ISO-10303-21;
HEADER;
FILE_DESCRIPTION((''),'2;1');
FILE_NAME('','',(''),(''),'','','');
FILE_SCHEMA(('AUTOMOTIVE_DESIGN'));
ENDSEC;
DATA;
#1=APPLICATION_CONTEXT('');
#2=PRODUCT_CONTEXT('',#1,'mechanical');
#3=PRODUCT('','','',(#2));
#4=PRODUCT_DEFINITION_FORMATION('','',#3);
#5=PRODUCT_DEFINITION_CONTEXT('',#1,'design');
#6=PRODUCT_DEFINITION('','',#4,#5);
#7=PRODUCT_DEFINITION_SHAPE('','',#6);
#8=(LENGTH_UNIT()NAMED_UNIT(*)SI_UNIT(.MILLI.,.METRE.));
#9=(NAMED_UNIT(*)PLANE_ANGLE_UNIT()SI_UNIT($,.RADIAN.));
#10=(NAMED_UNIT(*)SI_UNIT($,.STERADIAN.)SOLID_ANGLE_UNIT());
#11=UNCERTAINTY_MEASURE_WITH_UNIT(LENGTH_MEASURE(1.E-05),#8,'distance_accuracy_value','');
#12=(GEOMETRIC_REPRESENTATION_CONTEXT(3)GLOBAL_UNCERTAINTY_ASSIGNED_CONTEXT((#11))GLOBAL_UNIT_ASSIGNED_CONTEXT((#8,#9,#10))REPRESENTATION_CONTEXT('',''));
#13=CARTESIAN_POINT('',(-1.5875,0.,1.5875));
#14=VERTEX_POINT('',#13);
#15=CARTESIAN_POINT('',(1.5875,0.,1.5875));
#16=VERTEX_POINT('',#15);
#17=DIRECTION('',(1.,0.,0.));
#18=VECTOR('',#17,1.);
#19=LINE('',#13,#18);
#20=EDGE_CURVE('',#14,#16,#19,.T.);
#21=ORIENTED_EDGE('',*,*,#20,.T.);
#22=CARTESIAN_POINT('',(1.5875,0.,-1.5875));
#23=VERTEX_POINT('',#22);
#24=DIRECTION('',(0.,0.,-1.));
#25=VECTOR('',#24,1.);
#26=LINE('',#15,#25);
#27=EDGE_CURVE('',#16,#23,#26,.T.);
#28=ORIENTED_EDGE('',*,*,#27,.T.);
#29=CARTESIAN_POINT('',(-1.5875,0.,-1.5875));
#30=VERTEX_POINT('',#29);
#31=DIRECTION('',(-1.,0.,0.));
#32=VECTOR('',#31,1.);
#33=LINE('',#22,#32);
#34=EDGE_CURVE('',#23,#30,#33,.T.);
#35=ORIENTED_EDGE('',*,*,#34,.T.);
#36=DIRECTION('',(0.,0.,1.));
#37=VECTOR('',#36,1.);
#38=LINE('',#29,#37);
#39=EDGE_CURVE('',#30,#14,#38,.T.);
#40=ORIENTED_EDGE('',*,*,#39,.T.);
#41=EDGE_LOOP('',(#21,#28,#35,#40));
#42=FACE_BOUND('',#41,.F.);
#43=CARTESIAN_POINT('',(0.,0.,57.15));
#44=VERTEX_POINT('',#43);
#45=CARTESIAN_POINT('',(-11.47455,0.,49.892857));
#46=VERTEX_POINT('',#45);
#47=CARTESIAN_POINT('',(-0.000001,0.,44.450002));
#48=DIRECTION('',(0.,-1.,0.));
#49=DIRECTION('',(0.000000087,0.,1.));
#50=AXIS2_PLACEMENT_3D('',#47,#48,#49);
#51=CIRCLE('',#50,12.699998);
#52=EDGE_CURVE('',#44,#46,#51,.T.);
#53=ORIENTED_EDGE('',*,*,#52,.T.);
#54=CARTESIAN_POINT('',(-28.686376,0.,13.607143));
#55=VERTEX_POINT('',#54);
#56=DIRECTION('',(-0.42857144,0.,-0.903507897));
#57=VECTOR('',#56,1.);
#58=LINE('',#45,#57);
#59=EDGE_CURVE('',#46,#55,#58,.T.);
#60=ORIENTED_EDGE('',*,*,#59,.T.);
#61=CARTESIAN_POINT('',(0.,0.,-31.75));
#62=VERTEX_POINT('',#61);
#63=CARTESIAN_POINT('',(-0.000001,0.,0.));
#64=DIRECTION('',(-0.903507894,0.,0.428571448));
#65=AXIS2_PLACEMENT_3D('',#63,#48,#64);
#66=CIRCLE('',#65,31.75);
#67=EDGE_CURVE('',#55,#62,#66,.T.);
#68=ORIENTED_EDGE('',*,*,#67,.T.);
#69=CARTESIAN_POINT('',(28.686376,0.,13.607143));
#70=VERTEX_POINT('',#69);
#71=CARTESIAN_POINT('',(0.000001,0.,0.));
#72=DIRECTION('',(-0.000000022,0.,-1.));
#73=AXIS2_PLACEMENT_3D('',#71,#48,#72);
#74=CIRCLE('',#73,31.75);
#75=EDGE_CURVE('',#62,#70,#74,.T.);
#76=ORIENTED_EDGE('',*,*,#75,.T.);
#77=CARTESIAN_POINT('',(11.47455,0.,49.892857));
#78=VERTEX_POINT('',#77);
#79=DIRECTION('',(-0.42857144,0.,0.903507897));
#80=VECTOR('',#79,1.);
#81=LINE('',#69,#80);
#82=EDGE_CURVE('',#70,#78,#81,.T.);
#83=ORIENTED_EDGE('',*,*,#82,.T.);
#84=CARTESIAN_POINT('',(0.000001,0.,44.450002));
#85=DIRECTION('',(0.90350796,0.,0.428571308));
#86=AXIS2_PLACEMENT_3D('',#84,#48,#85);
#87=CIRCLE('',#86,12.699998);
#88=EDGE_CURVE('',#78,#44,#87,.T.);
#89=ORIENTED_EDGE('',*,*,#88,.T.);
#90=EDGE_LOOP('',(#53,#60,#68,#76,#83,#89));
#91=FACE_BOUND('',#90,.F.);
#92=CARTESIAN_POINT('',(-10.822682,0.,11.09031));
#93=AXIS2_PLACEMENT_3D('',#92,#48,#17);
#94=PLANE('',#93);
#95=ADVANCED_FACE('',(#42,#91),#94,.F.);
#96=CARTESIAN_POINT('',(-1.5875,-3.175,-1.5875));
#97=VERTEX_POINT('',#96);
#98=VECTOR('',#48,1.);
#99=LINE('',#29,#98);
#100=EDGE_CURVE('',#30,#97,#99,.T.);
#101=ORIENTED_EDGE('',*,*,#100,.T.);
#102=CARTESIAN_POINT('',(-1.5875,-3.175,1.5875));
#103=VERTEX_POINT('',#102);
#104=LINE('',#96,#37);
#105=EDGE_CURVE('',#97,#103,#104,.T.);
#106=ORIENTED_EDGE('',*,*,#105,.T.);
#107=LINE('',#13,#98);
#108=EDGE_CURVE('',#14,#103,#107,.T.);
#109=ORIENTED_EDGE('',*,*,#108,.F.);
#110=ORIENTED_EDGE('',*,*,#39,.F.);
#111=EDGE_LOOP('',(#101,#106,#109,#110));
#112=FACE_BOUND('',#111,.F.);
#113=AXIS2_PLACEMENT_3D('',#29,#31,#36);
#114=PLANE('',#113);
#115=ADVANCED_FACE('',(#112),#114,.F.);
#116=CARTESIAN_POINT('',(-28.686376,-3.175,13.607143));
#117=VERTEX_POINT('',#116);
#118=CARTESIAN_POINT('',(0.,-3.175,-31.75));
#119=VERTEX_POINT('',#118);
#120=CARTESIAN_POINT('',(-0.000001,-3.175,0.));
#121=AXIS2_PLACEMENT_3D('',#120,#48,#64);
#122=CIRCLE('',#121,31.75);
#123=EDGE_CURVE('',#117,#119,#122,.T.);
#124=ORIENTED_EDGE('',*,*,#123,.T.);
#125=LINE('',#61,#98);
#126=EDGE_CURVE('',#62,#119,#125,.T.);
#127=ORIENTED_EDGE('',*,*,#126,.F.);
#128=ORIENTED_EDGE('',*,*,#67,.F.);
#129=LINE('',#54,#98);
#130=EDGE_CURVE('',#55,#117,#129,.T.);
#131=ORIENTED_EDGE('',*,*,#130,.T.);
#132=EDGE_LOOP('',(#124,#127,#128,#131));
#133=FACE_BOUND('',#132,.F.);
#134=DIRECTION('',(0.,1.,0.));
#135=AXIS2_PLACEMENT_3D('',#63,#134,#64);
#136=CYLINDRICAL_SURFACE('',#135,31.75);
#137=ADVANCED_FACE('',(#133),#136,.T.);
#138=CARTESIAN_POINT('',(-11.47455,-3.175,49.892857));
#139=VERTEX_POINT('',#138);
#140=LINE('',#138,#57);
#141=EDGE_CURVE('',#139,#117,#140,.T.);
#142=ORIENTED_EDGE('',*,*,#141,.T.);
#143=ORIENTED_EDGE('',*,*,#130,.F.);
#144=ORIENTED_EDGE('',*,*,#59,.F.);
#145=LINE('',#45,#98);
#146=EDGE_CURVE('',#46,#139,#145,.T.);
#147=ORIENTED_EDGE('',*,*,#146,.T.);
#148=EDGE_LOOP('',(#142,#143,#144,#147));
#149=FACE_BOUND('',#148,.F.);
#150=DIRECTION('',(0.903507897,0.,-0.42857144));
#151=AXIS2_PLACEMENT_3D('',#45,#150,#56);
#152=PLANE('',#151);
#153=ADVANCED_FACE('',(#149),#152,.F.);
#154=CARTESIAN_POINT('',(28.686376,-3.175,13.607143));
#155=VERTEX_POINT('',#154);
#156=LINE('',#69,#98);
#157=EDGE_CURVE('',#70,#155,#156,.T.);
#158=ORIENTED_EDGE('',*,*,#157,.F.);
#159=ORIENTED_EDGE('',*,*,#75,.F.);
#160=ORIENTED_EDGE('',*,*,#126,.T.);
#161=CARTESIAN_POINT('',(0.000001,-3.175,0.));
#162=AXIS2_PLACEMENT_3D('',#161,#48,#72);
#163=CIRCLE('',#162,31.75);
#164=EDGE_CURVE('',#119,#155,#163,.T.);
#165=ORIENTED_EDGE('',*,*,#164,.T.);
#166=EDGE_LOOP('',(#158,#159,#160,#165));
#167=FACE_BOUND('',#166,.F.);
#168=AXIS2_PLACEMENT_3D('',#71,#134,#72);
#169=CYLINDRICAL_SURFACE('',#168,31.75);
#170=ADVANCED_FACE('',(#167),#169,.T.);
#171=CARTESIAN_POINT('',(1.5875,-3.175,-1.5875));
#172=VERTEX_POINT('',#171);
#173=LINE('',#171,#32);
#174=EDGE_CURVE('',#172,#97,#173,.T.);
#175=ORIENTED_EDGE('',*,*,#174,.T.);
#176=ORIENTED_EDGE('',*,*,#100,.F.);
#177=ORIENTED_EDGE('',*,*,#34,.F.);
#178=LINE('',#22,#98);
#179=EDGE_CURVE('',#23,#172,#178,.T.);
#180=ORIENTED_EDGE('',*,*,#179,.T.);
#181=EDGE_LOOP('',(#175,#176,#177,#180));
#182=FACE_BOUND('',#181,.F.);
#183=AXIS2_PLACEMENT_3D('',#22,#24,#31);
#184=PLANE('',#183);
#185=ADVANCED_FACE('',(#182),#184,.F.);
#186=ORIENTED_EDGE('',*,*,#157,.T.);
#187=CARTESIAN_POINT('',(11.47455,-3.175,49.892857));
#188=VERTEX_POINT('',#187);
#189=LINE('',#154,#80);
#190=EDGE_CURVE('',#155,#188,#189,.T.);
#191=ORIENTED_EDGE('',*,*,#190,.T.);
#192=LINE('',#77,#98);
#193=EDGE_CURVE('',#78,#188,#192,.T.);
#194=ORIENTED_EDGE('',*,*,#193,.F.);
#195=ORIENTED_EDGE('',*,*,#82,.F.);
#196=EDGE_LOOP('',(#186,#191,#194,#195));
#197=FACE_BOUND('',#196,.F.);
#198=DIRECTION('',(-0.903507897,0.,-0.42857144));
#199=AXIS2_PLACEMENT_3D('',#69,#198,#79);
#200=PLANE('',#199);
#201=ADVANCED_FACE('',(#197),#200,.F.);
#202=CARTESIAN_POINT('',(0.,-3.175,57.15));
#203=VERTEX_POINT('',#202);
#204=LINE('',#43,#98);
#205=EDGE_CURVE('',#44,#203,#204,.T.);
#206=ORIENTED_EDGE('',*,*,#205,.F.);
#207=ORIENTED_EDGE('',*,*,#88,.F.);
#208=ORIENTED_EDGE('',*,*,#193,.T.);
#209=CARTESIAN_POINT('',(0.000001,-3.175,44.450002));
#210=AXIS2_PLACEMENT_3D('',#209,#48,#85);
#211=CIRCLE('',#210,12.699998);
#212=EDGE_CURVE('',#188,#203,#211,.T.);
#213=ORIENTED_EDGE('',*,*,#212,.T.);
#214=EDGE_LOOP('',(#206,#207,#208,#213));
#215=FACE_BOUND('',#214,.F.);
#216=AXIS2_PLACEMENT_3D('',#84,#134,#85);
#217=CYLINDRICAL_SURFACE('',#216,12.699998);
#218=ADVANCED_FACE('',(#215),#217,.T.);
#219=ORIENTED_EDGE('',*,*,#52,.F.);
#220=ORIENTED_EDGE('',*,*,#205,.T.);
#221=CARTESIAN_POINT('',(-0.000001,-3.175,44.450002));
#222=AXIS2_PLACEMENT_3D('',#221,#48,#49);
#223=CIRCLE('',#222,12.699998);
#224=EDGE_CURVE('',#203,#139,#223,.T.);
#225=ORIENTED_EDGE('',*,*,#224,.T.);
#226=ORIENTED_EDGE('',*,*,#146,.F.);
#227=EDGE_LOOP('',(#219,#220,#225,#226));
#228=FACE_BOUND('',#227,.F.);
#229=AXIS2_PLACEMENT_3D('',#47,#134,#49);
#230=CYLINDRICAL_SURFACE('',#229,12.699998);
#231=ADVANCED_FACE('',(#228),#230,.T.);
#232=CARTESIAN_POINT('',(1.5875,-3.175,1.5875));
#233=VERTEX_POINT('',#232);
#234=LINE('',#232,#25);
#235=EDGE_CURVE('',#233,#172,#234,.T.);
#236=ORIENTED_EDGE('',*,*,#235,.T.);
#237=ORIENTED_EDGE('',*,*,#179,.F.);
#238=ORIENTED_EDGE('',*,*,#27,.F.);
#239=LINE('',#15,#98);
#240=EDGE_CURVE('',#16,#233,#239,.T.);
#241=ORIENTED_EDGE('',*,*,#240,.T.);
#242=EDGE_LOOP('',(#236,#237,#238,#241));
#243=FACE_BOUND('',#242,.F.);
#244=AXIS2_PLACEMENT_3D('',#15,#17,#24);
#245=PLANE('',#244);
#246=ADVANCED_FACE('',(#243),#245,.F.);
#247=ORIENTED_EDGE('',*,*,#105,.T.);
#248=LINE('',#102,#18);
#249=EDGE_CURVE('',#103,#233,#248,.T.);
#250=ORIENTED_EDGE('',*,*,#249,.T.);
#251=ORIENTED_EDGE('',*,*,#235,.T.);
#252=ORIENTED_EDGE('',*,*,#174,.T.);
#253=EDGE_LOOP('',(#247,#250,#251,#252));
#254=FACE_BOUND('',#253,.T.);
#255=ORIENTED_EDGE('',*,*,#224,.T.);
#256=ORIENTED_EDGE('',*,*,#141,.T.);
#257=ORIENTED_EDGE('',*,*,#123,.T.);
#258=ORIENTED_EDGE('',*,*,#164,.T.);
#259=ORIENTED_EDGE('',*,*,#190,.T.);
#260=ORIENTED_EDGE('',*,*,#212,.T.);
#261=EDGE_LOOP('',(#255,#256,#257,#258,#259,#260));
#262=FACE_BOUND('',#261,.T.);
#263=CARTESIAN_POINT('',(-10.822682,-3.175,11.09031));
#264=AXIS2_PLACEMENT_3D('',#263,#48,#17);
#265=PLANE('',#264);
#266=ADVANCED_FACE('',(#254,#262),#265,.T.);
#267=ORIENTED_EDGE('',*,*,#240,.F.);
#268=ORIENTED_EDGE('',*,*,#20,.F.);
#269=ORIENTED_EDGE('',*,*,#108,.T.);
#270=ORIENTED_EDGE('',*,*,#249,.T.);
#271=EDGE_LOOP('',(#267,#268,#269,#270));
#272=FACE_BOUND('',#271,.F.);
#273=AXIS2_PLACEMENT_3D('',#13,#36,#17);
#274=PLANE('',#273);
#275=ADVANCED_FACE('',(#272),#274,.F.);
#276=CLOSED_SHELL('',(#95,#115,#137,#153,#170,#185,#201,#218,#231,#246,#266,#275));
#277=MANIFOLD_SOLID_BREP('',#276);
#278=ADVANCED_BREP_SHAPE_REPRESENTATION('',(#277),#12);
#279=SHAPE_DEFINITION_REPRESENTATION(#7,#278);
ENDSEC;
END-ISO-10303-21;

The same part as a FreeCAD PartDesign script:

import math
import FreeCAD as App
import Part
import Sketcher
from FreeCAD import Vector
Q = App.Units.Quantity

doc = App.newDocument("Part")
body = doc.addObject("PartDesign::Body", "Body")

# Sketch on XZ plane
sketch1 = body.newObject("Sketcher::SketchObject", "Sketch")
sketch1.AttachmentSupport = (doc.getObject("XZ_Plane"), [""])
sketch1.MapMode = "FlatFace"
sketch1.addGeometry([
    Part.ArcOfCircle(Part.Circle(Vector(0, 44.5, 0), Vector(0, 0, 1), 12.7), math.radians(90), math.radians(155)),  # 0
    Part.LineSegment(Vector(-11.5, 49.9, 0), Vector(-28.7, 13.6, 0)),  # 1
    Part.ArcOfCircle(Part.Circle(Vector(0, 0, 0), Vector(0, 0, 1), 31.7), math.radians(155), math.radians(270)),  # 2
    Part.ArcOfCircle(Part.Circle(Vector(0, 0, 0), Vector(0, 0, 1), 31.7), math.radians(-90), math.radians(25)),  # 3
    Part.LineSegment(Vector(28.7, 13.6, 0), Vector(11.5, 49.9, 0)),  # 4
    Part.ArcOfCircle(Part.Circle(Vector(0, 44.5, 0), Vector(0, 0, 1), 12.7), math.radians(25), math.radians(90)),  # 5
    Part.LineSegment(Vector(-1.6, 1.6, 0), Vector(1.6, 1.6, 0)),  # 6
    Part.LineSegment(Vector(1.6, 1.6, 0), Vector(1.6, -1.6, 0)),  # 7
    Part.LineSegment(Vector(1.6, -1.6, 0), Vector(-1.6, -1.6, 0)),  # 8
    Part.LineSegment(Vector(-1.6, -1.6, 0), Vector(-1.6, 1.6, 0)),  # 9
], False)
sketch1.addConstraint([
    Sketcher.Constraint("Tangent", 0, 2, 1, 1),
    Sketcher.Constraint("Tangent", 1, 2, 2, 1),
    Sketcher.Constraint("Tangent", 2, 2, 3, 1),
    Sketcher.Constraint("Tangent", 3, 2, 4, 1),
    Sketcher.Constraint("Tangent", 4, 2, 5, 1),
    Sketcher.Constraint("Tangent", 5, 2, 0, 1),
    Sketcher.Constraint("Coincident", 6, 2, 7, 1),
    Sketcher.Constraint("Coincident", 7, 2, 8, 1),
    Sketcher.Constraint("Coincident", 8, 2, 9, 1),
    Sketcher.Constraint("Coincident", 9, 2, 6, 1),
    Sketcher.Constraint("Horizontal", 6),
    Sketcher.Constraint("Vertical", 7),
    Sketcher.Constraint("Horizontal", 8),
    Sketcher.Constraint("Vertical", 9),
    Sketcher.Constraint("Coincident", 2, 3, -1, 1),
    Sketcher.Constraint("Equal", 2, 3),
    Sketcher.Constraint("Equal", 0, 5),
    Sketcher.Constraint("Symmetric", 6, 2, 8, 2, -1, 1),
    Sketcher.Constraint("PointOnObject", 0, 3, -2),
    Sketcher.Constraint("PointOnObject", 2, 2, -2),
    Sketcher.Constraint("PointOnObject", 5, 2, -2),
    Sketcher.Constraint("Equal", 8, 7),
    Sketcher.Constraint("Radius", 0, Q("0.4999999 in")),
    Sketcher.Constraint("Radius", 2, Q("1.25 in")),
    Sketcher.Constraint("DistanceY", 2, 2, 0, 3, Q("3.0000001 in")),
    Sketcher.Constraint("DistanceX", 6, 1, 6, 2, Q("0.125 in")),
])
pad1 = body.newObject("PartDesign::Pad", "Pad")
pad1.Profile = sketch1
pad1.Length = Q("0.125 in")

doc.recompute()
